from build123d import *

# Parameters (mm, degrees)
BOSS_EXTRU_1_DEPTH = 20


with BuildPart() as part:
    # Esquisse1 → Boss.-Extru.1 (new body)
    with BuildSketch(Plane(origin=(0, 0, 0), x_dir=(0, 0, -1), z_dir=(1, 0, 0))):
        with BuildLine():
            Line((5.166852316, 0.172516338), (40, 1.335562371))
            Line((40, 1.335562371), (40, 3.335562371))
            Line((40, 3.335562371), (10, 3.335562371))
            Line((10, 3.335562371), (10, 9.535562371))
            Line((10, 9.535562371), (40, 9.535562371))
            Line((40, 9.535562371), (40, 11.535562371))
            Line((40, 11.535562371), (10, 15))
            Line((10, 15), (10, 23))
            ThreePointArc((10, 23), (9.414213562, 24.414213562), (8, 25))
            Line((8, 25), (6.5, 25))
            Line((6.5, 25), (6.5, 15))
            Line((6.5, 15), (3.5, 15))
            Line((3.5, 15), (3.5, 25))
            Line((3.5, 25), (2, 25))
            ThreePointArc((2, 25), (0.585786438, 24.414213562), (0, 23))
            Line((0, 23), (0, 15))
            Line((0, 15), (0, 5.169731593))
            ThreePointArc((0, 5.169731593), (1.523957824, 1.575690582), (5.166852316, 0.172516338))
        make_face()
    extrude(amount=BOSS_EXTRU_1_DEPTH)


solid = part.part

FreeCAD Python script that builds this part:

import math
import FreeCAD as App
import Part
import Sketcher

V = App.Vector

doc = App.newDocument("Part")
body = doc.addObject("PartDesign::Body", "Body")

# Sketch on YZ plane
sketch1 = doc.addObject("Sketcher::SketchObject", "Sketch")
body.addObject(sketch1)
sketch1.AttachmentSupport = (doc.YZ_Plane, [""])
sketch1.MapMode = "FlatFace"
sketch1.addGeometry(Part.LineSegment(V(0.2, -5.2, 0), V(1.3, -40, 0)), False)
sketch1.addGeometry(Part.LineSegment(V(1.3, -40, 0), V(3.3, -40, 0)), False)
sketch1.addGeometry(Part.LineSegment(V(3.3, -40, 0), V(3.3, -10, 0)), False)
sketch1.addGeometry(Part.LineSegment(V(3.3, -10, 0), V(9.5, -10, 0)), False)
sketch1.addGeometry(Part.LineSegment(V(9.5, -10, 0), V(9.5, -40, 0)), False)
sketch1.addGeometry(Part.LineSegment(V(9.5, -40, 0), V(11.5, -40, 0)), False)
sketch1.addGeometry(Part.LineSegment(V(11.5, -40, 0), V(15, -10, 0)), False)
sketch1.addGeometry(Part.LineSegment(V(15, -10, 0), V(23, -10, 0)), False)
sketch1.addGeometry(Part.ArcOfCircle(Part.Circle(V(23, -8, 0), V(0, 0, 1), 2), math.radians(-90), math.radians(0)), False)
sketch1.addGeometry(Part.LineSegment(V(25, -8, 0), V(25, -6.5, 0)), False)
sketch1.addGeometry(Part.LineSegment(V(25, -6.5, 0), V(15, -6.5, 0)), False)
sketch1.addGeometry(Part.LineSegment(V(15, -6.5, 0), V(15, -3.5, 0)), False)
sketch1.addGeometry(Part.LineSegment(V(15, -3.5, 0), V(25, -3.5, 0)), False)
sketch1.addGeometry(Part.LineSegment(V(25, -3.5, 0), V(25, -2, 0)), False)
sketch1.addGeometry(Part.ArcOfCircle(Part.Circle(V(23, -2, 0), V(0, 0, 1), 2), math.radians(0), math.radians(90)), False)
sketch1.addGeometry(Part.LineSegment(V(23, 0, 0), V(5.2, 0, 0)), False)
sketch1.addGeometry(Part.ArcOfCircle(Part.Circle(V(5.2, -5, 0), V(0, 0, 1), 5), math.radians(90), math.radians(182)), False)
sketch1.addConstraint(Sketcher.Constraint("Coincident", 0, 2, 1, 1))
sketch1.addConstraint(Sketcher.Constraint("Coincident", 1, 2, 2, 1))
sketch1.addConstraint(Sketcher.Constraint("Coincident", 2, 2, 3, 1))
sketch1.addConstraint(Sketcher.Constraint("Coincident", 3, 2, 4, 1))
sketch1.addConstraint(Sketcher.Constraint("Coincident", 4, 2, 5, 1))
sketch1.addConstraint(Sketcher.Constraint("Coincident", 5, 2, 6, 1))
sketch1.addConstraint(Sketcher.Constraint("Coincident", 6, 2, 7, 1))
sketch1.addConstraint(Sketcher.Constraint("Tangent", 7, 2, 8, 1))
sketch1.addConstraint(Sketcher.Constraint("Tangent", 8, 2, 9, 1))
sketch1.addConstraint(Sketcher.Constraint("Coincident", 9, 2, 10, 1))
sketch1.addConstraint(Sketcher.Constraint("Coincident", 10, 2, 11, 1))
sketch1.addConstraint(Sketcher.Constraint("Coincident", 11, 2, 12, 1))
sketch1.addConstraint(Sketcher.Constraint("Coincident", 12, 2, 13, 1))
sketch1.addConstraint(Sketcher.Constraint("Tangent", 13, 2, 14, 1))
sketch1.addConstraint(Sketcher.Constraint("Tangent", 14, 2, 15, 1))
sketch1.addConstraint(Sketcher.Constraint("Tangent", 15, 2, 16, 1))
sketch1.addConstraint(Sketcher.Constraint("Tangent", 16, 2, 0, 1))
sketch1.addConstraint(Sketcher.Constraint("Horizontal", 1))
sketch1.addConstraint(Sketcher.Constraint("Vertical", 2))
sketch1.addConstraint(Sketcher.Constraint("Horizontal", 3))
sketch1.addConstraint(Sketcher.Constraint("Vertical", 4))
sketch1.addConstraint(Sketcher.Constraint("Horizontal", 5))
sketch1.addConstraint(Sketcher.Constraint("Horizontal", 7))
sketch1.addConstraint(Sketcher.Constraint("Vertical", 9))
sketch1.addConstraint(Sketcher.Constraint("Horizontal", 10))
sketch1.addConstraint(Sketcher.Constraint("Vertical", 11))
sketch1.addConstraint(Sketcher.Constraint("Horizontal", 12))
sketch1.addConstraint(Sketcher.Constraint("Vertical", 13))
sketch1.addConstraint(Sketcher.Constraint("Horizontal", 15))
sketch1.addConstraint(Sketcher.Constraint("Equal", 8, 14))
sketch1.addConstraint(Sketcher.Constraint("PointOnObject", 14, 2, -1))
sketch1.addConstraint(Sketcher.Constraint("Horizontal", 1, 2, 4, 2))
sketch1.addConstraint(Sketcher.Constraint("Horizontal", 3, 2, 6, 2))
sketch1.addConstraint(Sketcher.Constraint("Vertical", 8, 3, 14, 3))
sketch1.addConstraint(Sketcher.Constraint("Vertical", 6, 2, 10, 2))
sketch1.addConstraint(Sketcher.Constraint("Equal", 1, 5))
sketch1.addConstraint(Sketcher.Constraint("Equal", 9, 13))
sketch1.addConstraint(Sketcher.Constraint("Radius", 8, 2.0))
sketch1.addConstraint(Sketcher.Constraint("Radius", 16, 5.0))
sketch1.addConstraint(Sketcher.Constraint("DistanceX", 1, 1, 1, 2, 2.0))
sketch1.addConstraint(Sketcher.Constraint("DistanceX", 7, 1, 7, 2, 8.0))
sketch1.addConstraint(Sketcher.Constraint("DistanceY", 2, 1, 2, 2, 30.0))
sketch1.addConstraint(Sketcher.Constraint("DistanceY", 11, 1, 11, 2, 3.0))
sketch1.addConstraint(Sketcher.Constraint("DistanceX", 3, 1, 3, 2, 6.2))
sketch1.addConstraint(Sketcher.Constraint("DistanceY", 9, 1, 9, 2, 1.5))
sketch1.addConstraint(Sketcher.Constraint("DistanceX", -1, 1, 8, 3, 23.0))
sketch1.addConstraint(Sketcher.Constraint("DistanceX", 15, 2, 15, 1, 17.830268))
sketch1.addConstraint(Sketcher.Constraint("Distance", 0, 34.852559))
pad1 = doc.addObject("PartDesign::Pad", "Pad")
body.addObject(pad1)
pad1.Profile = sketch1
pad1.Length = 20

doc.recompute()
